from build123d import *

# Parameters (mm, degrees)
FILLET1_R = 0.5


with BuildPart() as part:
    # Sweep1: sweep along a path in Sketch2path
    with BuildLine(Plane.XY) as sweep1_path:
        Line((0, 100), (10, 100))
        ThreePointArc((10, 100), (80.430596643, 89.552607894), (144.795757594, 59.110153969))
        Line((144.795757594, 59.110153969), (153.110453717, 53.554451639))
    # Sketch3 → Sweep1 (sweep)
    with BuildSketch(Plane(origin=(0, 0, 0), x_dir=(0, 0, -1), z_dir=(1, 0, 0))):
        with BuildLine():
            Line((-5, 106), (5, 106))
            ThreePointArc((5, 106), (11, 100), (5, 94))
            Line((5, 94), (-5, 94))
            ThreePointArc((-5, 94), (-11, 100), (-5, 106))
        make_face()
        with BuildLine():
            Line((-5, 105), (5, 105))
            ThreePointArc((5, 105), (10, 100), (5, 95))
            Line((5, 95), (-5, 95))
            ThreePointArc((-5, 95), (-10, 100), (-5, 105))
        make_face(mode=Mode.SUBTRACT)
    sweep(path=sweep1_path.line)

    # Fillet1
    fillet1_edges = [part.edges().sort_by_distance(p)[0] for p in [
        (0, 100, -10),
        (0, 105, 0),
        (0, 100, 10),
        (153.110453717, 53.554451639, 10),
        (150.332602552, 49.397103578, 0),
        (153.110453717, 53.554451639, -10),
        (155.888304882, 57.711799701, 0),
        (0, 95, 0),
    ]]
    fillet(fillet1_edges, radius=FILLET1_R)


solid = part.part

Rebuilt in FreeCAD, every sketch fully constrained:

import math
import FreeCAD as App
import Part
import Sketcher

V = App.Vector
Q = App.Units.Quantity


def edges_at(feature, points):
    """Names of the edges that pass closest to the given points."""
    edges = feature.Shape.Edges
    near = lambda p: min(range(len(edges)), key=lambda i: edges[i].distToShape(Part.Vertex(*p))[0])
    return sorted({f"Edge{near(p) + 1}" for p in points})

doc = App.newDocument("Part")
body = doc.addObject("PartDesign::Body", "Body")

sketch1 = doc.addObject("Sketcher::SketchObject", "Sketch")
body.addObject(sketch1)
sketch1.AttachmentSupport = (doc.YZ_Plane, [""])
sketch1.MapMode = "FlatFace"
sketch1.addGeometry(Part.LineSegment(V(106, -5, 0), V(106, 5, 0)), False)
sketch1.addGeometry(Part.ArcOfCircle(Part.Circle(V(100, 5, 0), V(0, 0, 1), 6), math.radians(0), math.radians(180)), False)
sketch1.addGeometry(Part.LineSegment(V(94, 5, 0), V(94, -5, 0)), False)
sketch1.addGeometry(Part.ArcOfCircle(Part.Circle(V(100, -5, 0), V(0, 0, 1), 6), math.radians(180), math.radians(360)), False)
sketch1.addGeometry(Part.LineSegment(V(105, 5, 0), V(105, -5, 0)), False)
sketch1.addGeometry(Part.ArcOfCircle(Part.Circle(V(100, -5, 0), V(0, 0, 1), 5), math.radians(180), math.radians(360)), False)
sketch1.addGeometry(Part.LineSegment(V(95, -5, 0), V(95, 5, 0)), False)
sketch1.addGeometry(Part.ArcOfCircle(Part.Circle(V(100, 5, 0), V(0, 0, 1), 5), math.radians(0), math.radians(180)), False)
sketch1.addConstraint(Sketcher.Constraint("Tangent", 0, 2, 1, 1))
sketch1.addConstraint(Sketcher.Constraint("Tangent", 1, 2, 2, 1))
sketch1.addConstraint(Sketcher.Constraint("Tangent", 2, 2, 3, 1))
sketch1.addConstraint(Sketcher.Constraint("Tangent", 3, 2, 0, 1))
sketch1.addConstraint(Sketcher.Constraint("Tangent", 4, 2, 5, 2))
sketch1.addConstraint(Sketcher.Constraint("Tangent", 5, 1, 6, 1))
sketch1.addConstraint(Sketcher.Constraint("Tangent", 6, 2, 7, 2))
sketch1.addConstraint(Sketcher.Constraint("Tangent", 7, 1, 4, 1))
sketch1.addConstraint(Sketcher.Constraint("Vertical", 0))
sketch1.addConstraint(Sketcher.Constraint("Vertical", 2))
sketch1.addConstraint(Sketcher.Constraint("Vertical", 4))
sketch1.addConstraint(Sketcher.Constraint("Vertical", 6))
sketch1.addConstraint(Sketcher.Constraint("Coincident", 5, 3, 3, 3))
sketch1.addConstraint(Sketcher.Constraint("Horizontal", 7, 3, 0, 2))
sketch1.addConstraint(Sketcher.Constraint("Radius", 1, Q("6 mm")))
sketch1.addConstraint(Sketcher.Constraint("Radius", 5, Q("5 mm")))
sketch1.addConstraint(Sketcher.Constraint("DistanceY", 0, 1, 0, 2, Q("10 mm")))
sketch1.addConstraint(Sketcher.Constraint("DistanceX", -1, 1, 1, 3, Q("100 mm")))
sketch1.addConstraint(Sketcher.Constraint("DistanceY", -1, 1, 1, 3, Q("5 mm")))

sketch2 = doc.addObject("Sketcher::SketchObject", "Sketch001")
body.addObject(sketch2)
sketch2.AttachmentSupport = (doc.XY_Plane, [""])
sketch2.MapMode = "FlatFace"
sketch2.addGeometry(Part.LineSegment(V(0, 100, 0), V(10, 100, 0)), False)
sketch2.addGeometry(Part.ArcOfCircle(Part.Circle(V(10, -143, 0), V(0, 0, 1), 243), math.radians(56), math.radians(90)), False)
sketch2.addGeometry(Part.LineSegment(V(145, 59, 0), V(153, 54, 0)), False)
sketch2.addConstraint(Sketcher.Constraint("Tangent", 0, 2, 1, 2))
sketch2.addConstraint(Sketcher.Constraint("Tangent", 1, 1, 2, 1))
sketch2.addConstraint(Sketcher.Constraint("Horizontal", 0))
sketch2.addConstraint(Sketcher.Constraint("PointOnObject", 0, 1, -2))
sketch2.addConstraint(Sketcher.Constraint("DistanceX", 0, 1, 0, 2, Q("10 mm")))
sketch2.addConstraint(Sketcher.Constraint("Distance", 2, Q("10 mm")))
sketch2.addConstraint(Sketcher.Constraint("DistanceY", -1, 1, 0, 1, Q("100 mm")))
sketch2.addConstraint(Sketcher.Constraint("Angle", 2, Q("-33.75 deg")))
sketch2.addConstraint(Sketcher.Constraint("Radius", 1, Q("242.625954 mm")))
doc.recompute()

additivepipe = doc.addObject("PartDesign::AdditivePipe", "AdditivePipe")
body.addObject(additivepipe)
additivepipe.Profile = sketch1
additivepipe.Spine = (sketch2, ["Edge1", "Edge2", "Edge3"])
doc.recompute()

fillet = doc.addObject("PartDesign::Fillet", "Fillet")
body.addObject(fillet)
fillet.Base = (additivepipe, edges_at(additivepipe, [
    (0, 100, -10),
    (0, 105, 0),
    (0, 100, 10),
    (153.11, 53.554, 10),
    (150.333, 49.397, 0),
    (153.11, 53.554, -10),
    (155.888, 57.712, 0),
    (0, 95, 0),
]))
fillet.Radius = 0.5

doc.recompute()
